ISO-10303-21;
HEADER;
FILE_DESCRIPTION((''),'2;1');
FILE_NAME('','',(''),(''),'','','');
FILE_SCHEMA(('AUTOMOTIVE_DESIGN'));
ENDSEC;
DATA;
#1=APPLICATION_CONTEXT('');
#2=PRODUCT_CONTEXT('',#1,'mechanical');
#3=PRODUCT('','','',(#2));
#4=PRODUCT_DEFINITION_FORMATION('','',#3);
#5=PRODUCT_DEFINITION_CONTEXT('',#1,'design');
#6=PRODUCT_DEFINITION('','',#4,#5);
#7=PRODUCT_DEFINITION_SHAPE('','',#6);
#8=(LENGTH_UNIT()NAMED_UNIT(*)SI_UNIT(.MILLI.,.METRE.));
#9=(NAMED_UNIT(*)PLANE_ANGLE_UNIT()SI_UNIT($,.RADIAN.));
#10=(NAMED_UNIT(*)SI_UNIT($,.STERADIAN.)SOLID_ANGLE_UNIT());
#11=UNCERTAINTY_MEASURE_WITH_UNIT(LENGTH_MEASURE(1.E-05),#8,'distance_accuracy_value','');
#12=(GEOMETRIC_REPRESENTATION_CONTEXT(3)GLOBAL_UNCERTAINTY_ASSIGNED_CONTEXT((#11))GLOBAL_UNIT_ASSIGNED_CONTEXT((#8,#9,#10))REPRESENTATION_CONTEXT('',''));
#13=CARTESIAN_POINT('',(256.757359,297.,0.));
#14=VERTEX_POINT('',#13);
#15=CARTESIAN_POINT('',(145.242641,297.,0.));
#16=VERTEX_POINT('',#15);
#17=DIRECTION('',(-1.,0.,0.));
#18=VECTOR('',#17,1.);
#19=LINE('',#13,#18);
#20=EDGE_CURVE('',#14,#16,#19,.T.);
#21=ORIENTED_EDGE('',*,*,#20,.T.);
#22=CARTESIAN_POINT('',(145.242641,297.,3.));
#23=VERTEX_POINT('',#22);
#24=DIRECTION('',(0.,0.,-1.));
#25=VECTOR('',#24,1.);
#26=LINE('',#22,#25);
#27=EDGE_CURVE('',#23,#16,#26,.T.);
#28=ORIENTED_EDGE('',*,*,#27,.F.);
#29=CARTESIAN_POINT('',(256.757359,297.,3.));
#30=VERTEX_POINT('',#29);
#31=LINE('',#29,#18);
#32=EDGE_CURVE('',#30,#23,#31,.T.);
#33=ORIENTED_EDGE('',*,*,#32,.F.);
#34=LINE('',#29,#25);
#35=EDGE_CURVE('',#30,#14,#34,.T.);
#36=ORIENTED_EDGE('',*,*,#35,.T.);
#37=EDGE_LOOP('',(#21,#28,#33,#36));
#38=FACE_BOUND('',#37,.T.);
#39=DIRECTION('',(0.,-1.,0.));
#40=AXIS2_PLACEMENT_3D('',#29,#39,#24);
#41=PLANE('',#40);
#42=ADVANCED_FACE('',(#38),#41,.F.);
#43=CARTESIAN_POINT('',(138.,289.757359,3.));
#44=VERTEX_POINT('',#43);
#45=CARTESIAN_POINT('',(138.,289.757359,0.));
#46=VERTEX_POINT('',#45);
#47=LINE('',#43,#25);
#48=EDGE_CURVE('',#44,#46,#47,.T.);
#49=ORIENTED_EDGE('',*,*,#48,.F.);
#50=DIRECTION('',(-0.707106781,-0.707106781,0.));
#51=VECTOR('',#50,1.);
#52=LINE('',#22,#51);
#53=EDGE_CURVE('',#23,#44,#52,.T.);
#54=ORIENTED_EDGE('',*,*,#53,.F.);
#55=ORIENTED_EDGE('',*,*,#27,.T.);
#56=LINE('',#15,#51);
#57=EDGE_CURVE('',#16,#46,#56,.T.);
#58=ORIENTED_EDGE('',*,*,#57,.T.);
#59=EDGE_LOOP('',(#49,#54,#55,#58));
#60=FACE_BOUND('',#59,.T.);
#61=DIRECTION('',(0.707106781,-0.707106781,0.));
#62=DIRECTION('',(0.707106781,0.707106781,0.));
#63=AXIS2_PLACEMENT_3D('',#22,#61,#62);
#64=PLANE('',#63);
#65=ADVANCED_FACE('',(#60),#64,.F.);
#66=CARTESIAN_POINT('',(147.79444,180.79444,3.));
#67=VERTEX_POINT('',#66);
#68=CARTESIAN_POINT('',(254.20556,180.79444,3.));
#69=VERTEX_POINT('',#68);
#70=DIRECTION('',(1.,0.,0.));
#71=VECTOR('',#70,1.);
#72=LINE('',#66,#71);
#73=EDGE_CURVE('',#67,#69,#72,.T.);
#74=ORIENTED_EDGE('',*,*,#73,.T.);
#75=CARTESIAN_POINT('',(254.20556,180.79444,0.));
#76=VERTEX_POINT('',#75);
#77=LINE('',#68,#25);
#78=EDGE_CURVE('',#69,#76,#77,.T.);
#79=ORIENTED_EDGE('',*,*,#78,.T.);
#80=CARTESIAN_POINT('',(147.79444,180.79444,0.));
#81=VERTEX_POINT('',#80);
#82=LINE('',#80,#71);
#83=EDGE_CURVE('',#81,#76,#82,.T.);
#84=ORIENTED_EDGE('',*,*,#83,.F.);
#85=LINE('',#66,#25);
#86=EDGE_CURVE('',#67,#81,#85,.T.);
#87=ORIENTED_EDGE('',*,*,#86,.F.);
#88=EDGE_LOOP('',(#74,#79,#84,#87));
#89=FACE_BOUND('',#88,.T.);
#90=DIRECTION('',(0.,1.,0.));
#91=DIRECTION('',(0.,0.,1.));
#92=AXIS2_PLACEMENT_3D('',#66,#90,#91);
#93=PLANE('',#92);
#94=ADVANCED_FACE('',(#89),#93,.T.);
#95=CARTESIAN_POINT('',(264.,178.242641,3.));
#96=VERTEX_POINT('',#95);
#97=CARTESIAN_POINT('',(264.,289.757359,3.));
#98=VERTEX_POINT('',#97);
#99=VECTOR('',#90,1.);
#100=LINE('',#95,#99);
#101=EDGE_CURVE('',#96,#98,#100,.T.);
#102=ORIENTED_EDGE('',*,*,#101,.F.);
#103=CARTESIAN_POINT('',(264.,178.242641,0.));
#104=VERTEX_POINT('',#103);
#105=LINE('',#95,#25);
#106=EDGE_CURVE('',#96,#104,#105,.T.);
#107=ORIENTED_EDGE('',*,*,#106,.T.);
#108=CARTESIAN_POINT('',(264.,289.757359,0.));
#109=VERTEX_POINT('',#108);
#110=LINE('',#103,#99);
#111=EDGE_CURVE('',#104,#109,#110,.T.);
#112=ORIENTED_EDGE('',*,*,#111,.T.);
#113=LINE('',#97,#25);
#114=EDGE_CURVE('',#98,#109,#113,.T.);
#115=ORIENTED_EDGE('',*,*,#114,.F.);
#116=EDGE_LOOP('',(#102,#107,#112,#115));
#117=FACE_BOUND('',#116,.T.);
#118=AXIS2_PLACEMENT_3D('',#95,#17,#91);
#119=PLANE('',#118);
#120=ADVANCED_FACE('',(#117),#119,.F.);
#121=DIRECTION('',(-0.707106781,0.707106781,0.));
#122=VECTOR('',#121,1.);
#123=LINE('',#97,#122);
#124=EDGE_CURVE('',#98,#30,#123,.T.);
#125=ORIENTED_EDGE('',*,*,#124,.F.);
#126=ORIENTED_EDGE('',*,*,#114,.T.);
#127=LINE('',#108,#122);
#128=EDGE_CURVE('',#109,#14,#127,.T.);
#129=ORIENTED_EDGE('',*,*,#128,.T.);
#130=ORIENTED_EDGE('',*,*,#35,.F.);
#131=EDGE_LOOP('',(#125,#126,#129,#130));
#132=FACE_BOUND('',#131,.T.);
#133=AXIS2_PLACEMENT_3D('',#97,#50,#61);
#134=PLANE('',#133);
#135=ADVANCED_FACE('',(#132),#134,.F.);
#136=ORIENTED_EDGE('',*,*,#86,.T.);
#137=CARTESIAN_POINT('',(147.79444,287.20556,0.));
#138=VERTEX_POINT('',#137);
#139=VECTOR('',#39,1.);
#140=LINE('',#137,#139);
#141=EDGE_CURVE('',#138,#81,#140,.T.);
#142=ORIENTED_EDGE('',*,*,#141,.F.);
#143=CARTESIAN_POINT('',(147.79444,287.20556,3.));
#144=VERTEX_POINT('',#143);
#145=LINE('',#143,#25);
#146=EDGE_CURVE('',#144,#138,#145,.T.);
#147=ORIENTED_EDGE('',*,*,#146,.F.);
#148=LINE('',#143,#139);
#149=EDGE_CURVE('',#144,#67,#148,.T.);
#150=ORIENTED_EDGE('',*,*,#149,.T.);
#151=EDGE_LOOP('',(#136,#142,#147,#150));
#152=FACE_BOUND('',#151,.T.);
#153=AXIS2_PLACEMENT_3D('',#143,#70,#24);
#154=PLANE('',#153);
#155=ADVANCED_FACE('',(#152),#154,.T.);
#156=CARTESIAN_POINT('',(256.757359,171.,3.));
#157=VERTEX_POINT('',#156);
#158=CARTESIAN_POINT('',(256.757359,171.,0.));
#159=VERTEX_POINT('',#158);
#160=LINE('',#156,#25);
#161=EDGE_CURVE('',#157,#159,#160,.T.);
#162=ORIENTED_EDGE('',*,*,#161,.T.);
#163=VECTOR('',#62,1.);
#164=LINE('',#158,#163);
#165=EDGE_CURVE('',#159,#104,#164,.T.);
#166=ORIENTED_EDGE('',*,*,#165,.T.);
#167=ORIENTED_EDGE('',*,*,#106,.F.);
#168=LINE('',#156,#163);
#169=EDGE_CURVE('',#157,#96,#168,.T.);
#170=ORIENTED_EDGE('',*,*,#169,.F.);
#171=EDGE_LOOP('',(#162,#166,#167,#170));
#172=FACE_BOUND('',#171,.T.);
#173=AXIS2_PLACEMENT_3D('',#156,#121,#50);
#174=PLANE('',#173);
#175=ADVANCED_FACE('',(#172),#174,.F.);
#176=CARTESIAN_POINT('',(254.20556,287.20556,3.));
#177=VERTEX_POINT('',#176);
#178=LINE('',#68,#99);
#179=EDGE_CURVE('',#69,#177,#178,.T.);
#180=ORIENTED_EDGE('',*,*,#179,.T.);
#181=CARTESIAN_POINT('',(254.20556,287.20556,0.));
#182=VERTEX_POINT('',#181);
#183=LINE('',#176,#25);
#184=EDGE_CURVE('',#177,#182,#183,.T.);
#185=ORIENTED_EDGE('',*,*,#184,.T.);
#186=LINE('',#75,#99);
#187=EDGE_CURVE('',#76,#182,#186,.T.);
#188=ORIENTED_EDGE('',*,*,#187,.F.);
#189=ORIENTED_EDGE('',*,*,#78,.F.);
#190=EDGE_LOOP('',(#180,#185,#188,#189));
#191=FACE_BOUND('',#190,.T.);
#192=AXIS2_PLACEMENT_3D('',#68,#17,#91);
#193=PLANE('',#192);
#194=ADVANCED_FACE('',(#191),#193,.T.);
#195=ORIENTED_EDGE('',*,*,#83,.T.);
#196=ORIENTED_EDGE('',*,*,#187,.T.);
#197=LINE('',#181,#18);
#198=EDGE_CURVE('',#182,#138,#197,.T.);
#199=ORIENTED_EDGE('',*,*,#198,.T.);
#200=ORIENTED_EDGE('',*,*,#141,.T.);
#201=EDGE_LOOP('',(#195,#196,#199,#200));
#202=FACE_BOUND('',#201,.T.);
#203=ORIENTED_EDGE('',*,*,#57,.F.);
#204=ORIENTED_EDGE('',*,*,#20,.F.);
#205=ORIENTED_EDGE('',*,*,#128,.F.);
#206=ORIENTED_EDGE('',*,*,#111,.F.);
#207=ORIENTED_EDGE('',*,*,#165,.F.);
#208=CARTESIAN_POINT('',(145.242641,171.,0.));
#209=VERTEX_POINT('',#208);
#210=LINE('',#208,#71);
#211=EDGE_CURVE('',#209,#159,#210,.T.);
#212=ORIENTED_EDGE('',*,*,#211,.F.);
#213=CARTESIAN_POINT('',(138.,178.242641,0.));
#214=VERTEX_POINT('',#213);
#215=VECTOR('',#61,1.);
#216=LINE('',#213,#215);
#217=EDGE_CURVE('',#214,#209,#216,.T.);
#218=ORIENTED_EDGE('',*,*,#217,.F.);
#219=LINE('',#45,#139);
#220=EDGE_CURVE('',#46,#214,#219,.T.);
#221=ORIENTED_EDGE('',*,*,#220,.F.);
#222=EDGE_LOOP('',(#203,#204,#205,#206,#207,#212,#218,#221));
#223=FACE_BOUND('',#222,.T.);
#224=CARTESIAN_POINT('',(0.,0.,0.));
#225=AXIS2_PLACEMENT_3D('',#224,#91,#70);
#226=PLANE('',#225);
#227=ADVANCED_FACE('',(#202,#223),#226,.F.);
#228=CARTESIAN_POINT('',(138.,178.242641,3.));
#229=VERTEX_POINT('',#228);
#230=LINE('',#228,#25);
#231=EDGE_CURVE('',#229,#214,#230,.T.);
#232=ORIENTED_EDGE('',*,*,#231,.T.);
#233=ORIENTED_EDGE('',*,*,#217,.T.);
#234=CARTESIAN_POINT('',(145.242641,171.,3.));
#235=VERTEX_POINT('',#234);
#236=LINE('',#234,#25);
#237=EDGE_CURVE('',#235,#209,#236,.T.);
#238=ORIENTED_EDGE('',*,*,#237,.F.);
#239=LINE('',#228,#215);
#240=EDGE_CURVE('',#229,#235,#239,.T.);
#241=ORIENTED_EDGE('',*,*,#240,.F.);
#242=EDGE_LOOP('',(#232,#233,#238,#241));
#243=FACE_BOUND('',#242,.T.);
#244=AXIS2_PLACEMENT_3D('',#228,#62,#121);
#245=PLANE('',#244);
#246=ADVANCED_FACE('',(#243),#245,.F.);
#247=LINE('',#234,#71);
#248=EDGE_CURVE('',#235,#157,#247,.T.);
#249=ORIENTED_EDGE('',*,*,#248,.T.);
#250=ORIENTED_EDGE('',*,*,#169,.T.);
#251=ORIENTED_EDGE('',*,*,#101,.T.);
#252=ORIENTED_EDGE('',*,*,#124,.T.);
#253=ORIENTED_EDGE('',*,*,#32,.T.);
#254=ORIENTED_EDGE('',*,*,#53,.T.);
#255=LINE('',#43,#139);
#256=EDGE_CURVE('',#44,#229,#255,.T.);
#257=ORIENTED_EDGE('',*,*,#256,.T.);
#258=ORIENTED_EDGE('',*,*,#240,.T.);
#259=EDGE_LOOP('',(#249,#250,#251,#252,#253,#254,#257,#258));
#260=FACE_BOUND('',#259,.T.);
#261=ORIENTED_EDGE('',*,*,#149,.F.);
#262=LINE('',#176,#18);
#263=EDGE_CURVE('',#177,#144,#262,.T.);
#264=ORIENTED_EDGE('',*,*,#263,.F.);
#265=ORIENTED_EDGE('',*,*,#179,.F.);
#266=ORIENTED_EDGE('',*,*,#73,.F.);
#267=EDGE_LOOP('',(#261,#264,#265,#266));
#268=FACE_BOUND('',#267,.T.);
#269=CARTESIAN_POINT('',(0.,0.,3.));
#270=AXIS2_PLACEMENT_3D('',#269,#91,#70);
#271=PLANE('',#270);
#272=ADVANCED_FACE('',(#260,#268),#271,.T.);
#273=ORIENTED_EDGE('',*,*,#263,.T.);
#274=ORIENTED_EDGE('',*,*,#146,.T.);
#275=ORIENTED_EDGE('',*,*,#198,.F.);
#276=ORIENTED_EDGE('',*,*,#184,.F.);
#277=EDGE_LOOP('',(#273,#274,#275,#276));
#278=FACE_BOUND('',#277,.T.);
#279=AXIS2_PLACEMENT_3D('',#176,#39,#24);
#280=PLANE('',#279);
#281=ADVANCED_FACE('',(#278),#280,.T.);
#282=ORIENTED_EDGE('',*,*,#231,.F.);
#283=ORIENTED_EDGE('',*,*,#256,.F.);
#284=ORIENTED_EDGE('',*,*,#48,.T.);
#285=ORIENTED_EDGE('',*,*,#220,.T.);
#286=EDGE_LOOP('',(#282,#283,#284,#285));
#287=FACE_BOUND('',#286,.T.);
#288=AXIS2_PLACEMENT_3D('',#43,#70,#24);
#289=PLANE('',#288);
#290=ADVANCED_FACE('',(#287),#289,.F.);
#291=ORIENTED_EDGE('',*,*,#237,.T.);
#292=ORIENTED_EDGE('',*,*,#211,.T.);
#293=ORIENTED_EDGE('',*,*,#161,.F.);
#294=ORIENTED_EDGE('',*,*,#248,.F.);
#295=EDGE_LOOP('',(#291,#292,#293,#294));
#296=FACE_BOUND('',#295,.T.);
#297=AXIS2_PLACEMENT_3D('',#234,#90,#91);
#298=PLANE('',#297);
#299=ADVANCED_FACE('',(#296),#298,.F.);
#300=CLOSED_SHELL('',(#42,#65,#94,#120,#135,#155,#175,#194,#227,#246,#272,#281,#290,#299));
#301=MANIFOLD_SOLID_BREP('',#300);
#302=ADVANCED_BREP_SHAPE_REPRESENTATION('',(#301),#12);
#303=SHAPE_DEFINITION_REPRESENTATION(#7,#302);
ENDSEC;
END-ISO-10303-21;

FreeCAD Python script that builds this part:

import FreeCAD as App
import Part
import Sketcher


def add_polygon(sketch, points):
    """Adds a closed chain of lines whose ends are joined by coincident constraints."""
    first, n = sketch.GeometryCount, len(points)
    for a, b in zip(points, points[1:] + points[:1]):
        sketch.addGeometry(Part.LineSegment(App.Vector(*a, 0), App.Vector(*b, 0)), False)
    for i in range(n):
        sketch.addConstraint(Sketcher.Constraint("Coincident", first + i, 2, first + (i + 1) % n, 1))

doc = App.newDocument("Part")
params = doc.addObject("Spreadsheet::Sheet", "Params")
for row, (alias, value) in enumerate([
    ("pad1_length", "3 mm"),
], start=1):
    params.set(f"A{row}", alias)
    params.set(f"B{row}", "=" + value)
    params.setAlias(f"B{row}", alias)

body = doc.addObject("PartDesign::Body", "Body")

# Sketch on XY plane
sketch1 = doc.addObject("Sketcher::SketchObject", "Sketch")
body.addObject(sketch1)
sketch1.AttachmentSupport = (doc.XY_Plane, [""])
sketch1.MapMode = "FlatFace"
add_polygon(sketch1, [(256.757359, 297), (145.242641, 297), (138, 289.757359), (138, 178.242641), (145.242641, 171), (256.757359, 171), (264, 178.242641), (264, 289.757359)])  # lines 0-7
add_polygon(sketch1, [(254.20556, 180.79444), (147.79444, 180.79444), (147.79444, 287.20556), (254.20556, 287.20556)])  # lines 8-11
sketch1.addConstraint(Sketcher.Constraint("Horizontal", 0))
sketch1.addConstraint(Sketcher.Constraint("Vertical", 2))
sketch1.addConstraint(Sketcher.Constraint("Horizontal", 4))
sketch1.addConstraint(Sketcher.Constraint("Vertical", 6))
sketch1.addConstraint(Sketcher.Constraint("Horizontal", 8))
sketch1.addConstraint(Sketcher.Constraint("Vertical", 9))
sketch1.addConstraint(Sketcher.Constraint("Horizontal", 10))
sketch1.addConstraint(Sketcher.Constraint("Vertical", 11))
sketch1.addConstraint(Sketcher.Constraint("Perpendicular", 1, 3))
sketch1.addConstraint(Sketcher.Constraint("Perpendicular", 3, 5))
sketch1.addConstraint(Sketcher.Constraint("Perpendicular", 5, 7))
sketch1.addConstraint(Sketcher.Constraint("Horizontal", 2, 2, 5, 2))
sketch1.addConstraint(Sketcher.Constraint("Horizontal", 1, 2, 6, 2))
sketch1.addConstraint(Sketcher.Constraint("Vertical", 0, 2, 3, 2))
sketch1.addConstraint(Sketcher.Constraint("Vertical", 4, 2, 7, 2))
sketch1.addConstraint(Sketcher.Constraint("Equal", 4, 2))
sketch1.addConstraint(Sketcher.Constraint("Equal", 10, 9))
sketch1.addConstraint(Sketcher.Constraint("DistanceY", -1, 1, 0, 2, 297.0))
sketch1.addConstraint(Sketcher.Constraint("DistanceX", -1, 1, 1, 2, 138.0))
sketch1.addConstraint(Sketcher.Constraint("DistanceY", -1, 1, 3, 2, 171.0))
sketch1.addConstraint(Sketcher.Constraint("DistanceX", 0, 2, 0, 1, 111.514719))
sketch1.addConstraint(Sketcher.Constraint("DistanceX", 8, 2, 8, 1, 106.411119))
sketch1.addConstraint(Sketcher.Constraint("DistanceY", 2, 2, 8, 2, 2.5518))
sketch1.addConstraint(Sketcher.Constraint("DistanceX", 3, 2, 8, 2, 2.5518))
pad1 = doc.addObject("PartDesign::Pad", "Pad")
body.addObject(pad1)
pad1.Profile = sketch1
pad1.setExpression("Length", "Params.pad1_length")

doc.recompute()
